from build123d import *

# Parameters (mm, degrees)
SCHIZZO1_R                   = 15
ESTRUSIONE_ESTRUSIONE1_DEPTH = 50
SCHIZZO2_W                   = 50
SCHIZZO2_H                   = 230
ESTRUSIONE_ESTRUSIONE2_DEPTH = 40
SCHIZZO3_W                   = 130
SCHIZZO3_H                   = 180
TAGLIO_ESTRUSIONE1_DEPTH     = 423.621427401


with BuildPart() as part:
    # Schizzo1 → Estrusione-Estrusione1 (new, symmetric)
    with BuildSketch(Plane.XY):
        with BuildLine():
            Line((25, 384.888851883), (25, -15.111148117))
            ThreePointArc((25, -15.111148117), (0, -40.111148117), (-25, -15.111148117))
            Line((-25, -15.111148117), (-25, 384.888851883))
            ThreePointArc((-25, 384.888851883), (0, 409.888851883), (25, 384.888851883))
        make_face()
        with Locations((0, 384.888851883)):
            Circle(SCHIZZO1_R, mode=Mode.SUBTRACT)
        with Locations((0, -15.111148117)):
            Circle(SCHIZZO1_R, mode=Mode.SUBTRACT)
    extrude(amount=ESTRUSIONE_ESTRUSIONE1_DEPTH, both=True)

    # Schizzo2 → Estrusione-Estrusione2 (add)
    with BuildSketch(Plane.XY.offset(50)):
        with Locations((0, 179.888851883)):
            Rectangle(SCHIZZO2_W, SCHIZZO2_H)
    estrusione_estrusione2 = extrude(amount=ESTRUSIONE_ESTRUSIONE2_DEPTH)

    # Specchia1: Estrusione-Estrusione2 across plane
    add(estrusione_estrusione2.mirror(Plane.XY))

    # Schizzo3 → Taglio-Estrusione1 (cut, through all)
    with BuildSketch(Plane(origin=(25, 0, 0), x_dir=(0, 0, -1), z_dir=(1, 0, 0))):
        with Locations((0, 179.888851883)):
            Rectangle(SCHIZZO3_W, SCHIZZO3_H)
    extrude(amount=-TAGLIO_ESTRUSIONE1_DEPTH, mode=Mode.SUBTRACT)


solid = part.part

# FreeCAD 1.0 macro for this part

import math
import FreeCAD as App
import Part
import Sketcher

V = App.Vector
Q = App.Units.Quantity

doc = App.newDocument("Part")
body = doc.addObject("PartDesign::Body", "Body")

# Sketch on XY plane
sketch1 = body.newObject("Sketcher::SketchObject", "Sketch")
sketch1.AttachmentSupport = (doc.getObject("XY_Plane"), [""])
sketch1.MapMode = "FlatFace"
sketch1.addGeometry(Part.LineSegment(V(25, -15.111148, 0), V(25, 384.888852, 0)), False)
sketch1.addGeometry(Part.ArcOfCircle(Part.Circle(V(0, 384.888852, 0), V(0, 0, 1), 25), math.radians(0), math.radians(180)), False)
sketch1.addGeometry(Part.LineSegment(V(-25, 384.888852, 0), V(-25, -15.111148, 0)), False)
sketch1.addGeometry(Part.ArcOfCircle(Part.Circle(V(0, -15.111148, 0), V(0, 0, 1), 25), math.radians(180), math.radians(360)), False)
sketch1.addGeometry(Part.Circle(V(0, -15.111148, 0), V(0, 0, 1), 15), False)
sketch1.addGeometry(Part.Circle(V(0, 384.888852, 0), V(0, 0, 1), 15), False)
sketch1.addConstraint(Sketcher.Constraint("Tangent", 0, 2, 1, 1))
sketch1.addConstraint(Sketcher.Constraint("Tangent", 1, 2, 2, 1))
sketch1.addConstraint(Sketcher.Constraint("Tangent", 2, 2, 3, 1))
sketch1.addConstraint(Sketcher.Constraint("Tangent", 3, 2, 0, 1))
sketch1.addConstraint(Sketcher.Constraint("Vertical", 0))
sketch1.addConstraint(Sketcher.Constraint("Vertical", 2))
sketch1.addConstraint(Sketcher.Constraint("Coincident", 4, 3, 3, 3))
sketch1.addConstraint(Sketcher.Constraint("Coincident", 5, 3, 1, 3))
sketch1.addConstraint(Sketcher.Constraint("Equal", 4, 5))
sketch1.addConstraint(Sketcher.Constraint("PointOnObject", 1, 3, -2))
sketch1.addConstraint(Sketcher.Constraint("Diameter", 4, Q("30 mm")))
sketch1.addConstraint(Sketcher.Constraint("Radius", 1, Q("25 mm")))
sketch1.addConstraint(Sketcher.Constraint("DistanceY", 0, 1, 0, 2, Q("400 mm")))
sketch1.addConstraint(Sketcher.Constraint("DistanceY", -1, 1, 1, 3, Q("384.888852 mm")))
pad1 = body.newObject("PartDesign::Pad", "Pad")
pad1.Profile = sketch1
pad1.Length = 100
pad1.Midplane = True

# Sketch on XY plane
sketch2 = body.newObject("Sketcher::SketchObject", "Sketch001")
sketch2.AttachmentSupport = (doc.getObject("XY_Plane"), [""])
sketch2.MapMode = "FlatFace"
sketch2.AttachmentOffset = App.Placement(V(0, 0, 50), App.Rotation())
sketch2.addGeometry(Part.LineSegment(V(-25, 294.888852, 0), V(-25, 64.888852, 0)), False)
sketch2.addGeometry(Part.LineSegment(V(-25, 64.888852, 0), V(25, 64.888852, 0)), False)
sketch2.addGeometry(Part.LineSegment(V(25, 64.888852, 0), V(25, 294.888852, 0)), False)
sketch2.addGeometry(Part.LineSegment(V(25, 294.888852, 0), V(-25, 294.888852, 0)), False)
sketch2.addConstraint(Sketcher.Constraint("Coincident", 0, 2, 1, 1))
sketch2.addConstraint(Sketcher.Constraint("Coincident", 1, 2, 2, 1))
sketch2.addConstraint(Sketcher.Constraint("Coincident", 2, 2, 3, 1))
sketch2.addConstraint(Sketcher.Constraint("Coincident", 3, 2, 0, 1))
sketch2.addConstraint(Sketcher.Constraint("Vertical", 0))
sketch2.addConstraint(Sketcher.Constraint("Horizontal", 1))
sketch2.addConstraint(Sketcher.Constraint("Vertical", 2))
sketch2.addConstraint(Sketcher.Constraint("Horizontal", 3))
sketch2.addConstraint(Sketcher.Constraint("DistanceX", 1, 1, 1, 2, Q("50 mm")))
sketch2.addConstraint(Sketcher.Constraint("DistanceY", 0, 2, 0, 1, Q("230 mm")))
sketch2.addConstraint(Sketcher.Constraint("DistanceX", 0, 2, -1, 1, Q("25 mm")))
sketch2.addConstraint(Sketcher.Constraint("DistanceY", -1, 1, 0, 2, Q("64.888852 mm")))
pad2 = body.newObject("PartDesign::Pad", "Pad001")
pad2.Profile = sketch2
pad2.Length = 40
doc.recompute()

mirrored = body.newObject("PartDesign::Mirrored", "Mirrored")
mirrored.Originals = [pad2]
mirrored.MirrorPlane = (doc.getObject("XY_Plane"), [""])
body.Tip = mirrored

# Sketch on YZ plane
sketch3 = body.newObject("Sketcher::SketchObject", "Sketch002")
sketch3.AttachmentSupport = (doc.getObject("YZ_Plane"), [""])
sketch3.MapMode = "FlatFace"
sketch3.AttachmentOffset = App.Placement(V(0, 0, 25), App.Rotation())
sketch3.addGeometry(Part.LineSegment(V(269.888852, 65, 0), V(89.888852, 65, 0)), False)
sketch3.addGeometry(Part.LineSegment(V(89.888852, 65, 0), V(89.888852, -65, 0)), False)
sketch3.addGeometry(Part.LineSegment(V(89.888852, -65, 0), V(269.888852, -65, 0)), False)
sketch3.addGeometry(Part.LineSegment(V(269.888852, -65, 0), V(269.888852, 65, 0)), False)
sketch3.addConstraint(Sketcher.Constraint("Coincident", 0, 2, 1, 1))
sketch3.addConstraint(Sketcher.Constraint("Coincident", 1, 2, 2, 1))
sketch3.addConstraint(Sketcher.Constraint("Coincident", 2, 2, 3, 1))
sketch3.addConstraint(Sketcher.Constraint("Coincident", 3, 2, 0, 1))
sketch3.addConstraint(Sketcher.Constraint("Horizontal", 0))
sketch3.addConstraint(Sketcher.Constraint("Vertical", 1))
sketch3.addConstraint(Sketcher.Constraint("Horizontal", 2))
sketch3.addConstraint(Sketcher.Constraint("Vertical", 3))
sketch3.addConstraint(Sketcher.Constraint("DistanceX", 0, 2, 0, 1, Q("180 mm")))
sketch3.addConstraint(Sketcher.Constraint("DistanceY", 1, 2, 1, 1, Q("130 mm")))
sketch3.addConstraint(Sketcher.Constraint("DistanceY", -1, 1, 0, 2, Q("65 mm")))
sketch3.addConstraint(Sketcher.Constraint("DistanceX", -1, 1, 0, 2, Q("89.888852 mm")))
pocket1 = body.newObject("PartDesign::Pocket", "Pocket")
pocket1.Profile = sketch3
pocket1.Type = "ThroughAll"

doc.recompute()
